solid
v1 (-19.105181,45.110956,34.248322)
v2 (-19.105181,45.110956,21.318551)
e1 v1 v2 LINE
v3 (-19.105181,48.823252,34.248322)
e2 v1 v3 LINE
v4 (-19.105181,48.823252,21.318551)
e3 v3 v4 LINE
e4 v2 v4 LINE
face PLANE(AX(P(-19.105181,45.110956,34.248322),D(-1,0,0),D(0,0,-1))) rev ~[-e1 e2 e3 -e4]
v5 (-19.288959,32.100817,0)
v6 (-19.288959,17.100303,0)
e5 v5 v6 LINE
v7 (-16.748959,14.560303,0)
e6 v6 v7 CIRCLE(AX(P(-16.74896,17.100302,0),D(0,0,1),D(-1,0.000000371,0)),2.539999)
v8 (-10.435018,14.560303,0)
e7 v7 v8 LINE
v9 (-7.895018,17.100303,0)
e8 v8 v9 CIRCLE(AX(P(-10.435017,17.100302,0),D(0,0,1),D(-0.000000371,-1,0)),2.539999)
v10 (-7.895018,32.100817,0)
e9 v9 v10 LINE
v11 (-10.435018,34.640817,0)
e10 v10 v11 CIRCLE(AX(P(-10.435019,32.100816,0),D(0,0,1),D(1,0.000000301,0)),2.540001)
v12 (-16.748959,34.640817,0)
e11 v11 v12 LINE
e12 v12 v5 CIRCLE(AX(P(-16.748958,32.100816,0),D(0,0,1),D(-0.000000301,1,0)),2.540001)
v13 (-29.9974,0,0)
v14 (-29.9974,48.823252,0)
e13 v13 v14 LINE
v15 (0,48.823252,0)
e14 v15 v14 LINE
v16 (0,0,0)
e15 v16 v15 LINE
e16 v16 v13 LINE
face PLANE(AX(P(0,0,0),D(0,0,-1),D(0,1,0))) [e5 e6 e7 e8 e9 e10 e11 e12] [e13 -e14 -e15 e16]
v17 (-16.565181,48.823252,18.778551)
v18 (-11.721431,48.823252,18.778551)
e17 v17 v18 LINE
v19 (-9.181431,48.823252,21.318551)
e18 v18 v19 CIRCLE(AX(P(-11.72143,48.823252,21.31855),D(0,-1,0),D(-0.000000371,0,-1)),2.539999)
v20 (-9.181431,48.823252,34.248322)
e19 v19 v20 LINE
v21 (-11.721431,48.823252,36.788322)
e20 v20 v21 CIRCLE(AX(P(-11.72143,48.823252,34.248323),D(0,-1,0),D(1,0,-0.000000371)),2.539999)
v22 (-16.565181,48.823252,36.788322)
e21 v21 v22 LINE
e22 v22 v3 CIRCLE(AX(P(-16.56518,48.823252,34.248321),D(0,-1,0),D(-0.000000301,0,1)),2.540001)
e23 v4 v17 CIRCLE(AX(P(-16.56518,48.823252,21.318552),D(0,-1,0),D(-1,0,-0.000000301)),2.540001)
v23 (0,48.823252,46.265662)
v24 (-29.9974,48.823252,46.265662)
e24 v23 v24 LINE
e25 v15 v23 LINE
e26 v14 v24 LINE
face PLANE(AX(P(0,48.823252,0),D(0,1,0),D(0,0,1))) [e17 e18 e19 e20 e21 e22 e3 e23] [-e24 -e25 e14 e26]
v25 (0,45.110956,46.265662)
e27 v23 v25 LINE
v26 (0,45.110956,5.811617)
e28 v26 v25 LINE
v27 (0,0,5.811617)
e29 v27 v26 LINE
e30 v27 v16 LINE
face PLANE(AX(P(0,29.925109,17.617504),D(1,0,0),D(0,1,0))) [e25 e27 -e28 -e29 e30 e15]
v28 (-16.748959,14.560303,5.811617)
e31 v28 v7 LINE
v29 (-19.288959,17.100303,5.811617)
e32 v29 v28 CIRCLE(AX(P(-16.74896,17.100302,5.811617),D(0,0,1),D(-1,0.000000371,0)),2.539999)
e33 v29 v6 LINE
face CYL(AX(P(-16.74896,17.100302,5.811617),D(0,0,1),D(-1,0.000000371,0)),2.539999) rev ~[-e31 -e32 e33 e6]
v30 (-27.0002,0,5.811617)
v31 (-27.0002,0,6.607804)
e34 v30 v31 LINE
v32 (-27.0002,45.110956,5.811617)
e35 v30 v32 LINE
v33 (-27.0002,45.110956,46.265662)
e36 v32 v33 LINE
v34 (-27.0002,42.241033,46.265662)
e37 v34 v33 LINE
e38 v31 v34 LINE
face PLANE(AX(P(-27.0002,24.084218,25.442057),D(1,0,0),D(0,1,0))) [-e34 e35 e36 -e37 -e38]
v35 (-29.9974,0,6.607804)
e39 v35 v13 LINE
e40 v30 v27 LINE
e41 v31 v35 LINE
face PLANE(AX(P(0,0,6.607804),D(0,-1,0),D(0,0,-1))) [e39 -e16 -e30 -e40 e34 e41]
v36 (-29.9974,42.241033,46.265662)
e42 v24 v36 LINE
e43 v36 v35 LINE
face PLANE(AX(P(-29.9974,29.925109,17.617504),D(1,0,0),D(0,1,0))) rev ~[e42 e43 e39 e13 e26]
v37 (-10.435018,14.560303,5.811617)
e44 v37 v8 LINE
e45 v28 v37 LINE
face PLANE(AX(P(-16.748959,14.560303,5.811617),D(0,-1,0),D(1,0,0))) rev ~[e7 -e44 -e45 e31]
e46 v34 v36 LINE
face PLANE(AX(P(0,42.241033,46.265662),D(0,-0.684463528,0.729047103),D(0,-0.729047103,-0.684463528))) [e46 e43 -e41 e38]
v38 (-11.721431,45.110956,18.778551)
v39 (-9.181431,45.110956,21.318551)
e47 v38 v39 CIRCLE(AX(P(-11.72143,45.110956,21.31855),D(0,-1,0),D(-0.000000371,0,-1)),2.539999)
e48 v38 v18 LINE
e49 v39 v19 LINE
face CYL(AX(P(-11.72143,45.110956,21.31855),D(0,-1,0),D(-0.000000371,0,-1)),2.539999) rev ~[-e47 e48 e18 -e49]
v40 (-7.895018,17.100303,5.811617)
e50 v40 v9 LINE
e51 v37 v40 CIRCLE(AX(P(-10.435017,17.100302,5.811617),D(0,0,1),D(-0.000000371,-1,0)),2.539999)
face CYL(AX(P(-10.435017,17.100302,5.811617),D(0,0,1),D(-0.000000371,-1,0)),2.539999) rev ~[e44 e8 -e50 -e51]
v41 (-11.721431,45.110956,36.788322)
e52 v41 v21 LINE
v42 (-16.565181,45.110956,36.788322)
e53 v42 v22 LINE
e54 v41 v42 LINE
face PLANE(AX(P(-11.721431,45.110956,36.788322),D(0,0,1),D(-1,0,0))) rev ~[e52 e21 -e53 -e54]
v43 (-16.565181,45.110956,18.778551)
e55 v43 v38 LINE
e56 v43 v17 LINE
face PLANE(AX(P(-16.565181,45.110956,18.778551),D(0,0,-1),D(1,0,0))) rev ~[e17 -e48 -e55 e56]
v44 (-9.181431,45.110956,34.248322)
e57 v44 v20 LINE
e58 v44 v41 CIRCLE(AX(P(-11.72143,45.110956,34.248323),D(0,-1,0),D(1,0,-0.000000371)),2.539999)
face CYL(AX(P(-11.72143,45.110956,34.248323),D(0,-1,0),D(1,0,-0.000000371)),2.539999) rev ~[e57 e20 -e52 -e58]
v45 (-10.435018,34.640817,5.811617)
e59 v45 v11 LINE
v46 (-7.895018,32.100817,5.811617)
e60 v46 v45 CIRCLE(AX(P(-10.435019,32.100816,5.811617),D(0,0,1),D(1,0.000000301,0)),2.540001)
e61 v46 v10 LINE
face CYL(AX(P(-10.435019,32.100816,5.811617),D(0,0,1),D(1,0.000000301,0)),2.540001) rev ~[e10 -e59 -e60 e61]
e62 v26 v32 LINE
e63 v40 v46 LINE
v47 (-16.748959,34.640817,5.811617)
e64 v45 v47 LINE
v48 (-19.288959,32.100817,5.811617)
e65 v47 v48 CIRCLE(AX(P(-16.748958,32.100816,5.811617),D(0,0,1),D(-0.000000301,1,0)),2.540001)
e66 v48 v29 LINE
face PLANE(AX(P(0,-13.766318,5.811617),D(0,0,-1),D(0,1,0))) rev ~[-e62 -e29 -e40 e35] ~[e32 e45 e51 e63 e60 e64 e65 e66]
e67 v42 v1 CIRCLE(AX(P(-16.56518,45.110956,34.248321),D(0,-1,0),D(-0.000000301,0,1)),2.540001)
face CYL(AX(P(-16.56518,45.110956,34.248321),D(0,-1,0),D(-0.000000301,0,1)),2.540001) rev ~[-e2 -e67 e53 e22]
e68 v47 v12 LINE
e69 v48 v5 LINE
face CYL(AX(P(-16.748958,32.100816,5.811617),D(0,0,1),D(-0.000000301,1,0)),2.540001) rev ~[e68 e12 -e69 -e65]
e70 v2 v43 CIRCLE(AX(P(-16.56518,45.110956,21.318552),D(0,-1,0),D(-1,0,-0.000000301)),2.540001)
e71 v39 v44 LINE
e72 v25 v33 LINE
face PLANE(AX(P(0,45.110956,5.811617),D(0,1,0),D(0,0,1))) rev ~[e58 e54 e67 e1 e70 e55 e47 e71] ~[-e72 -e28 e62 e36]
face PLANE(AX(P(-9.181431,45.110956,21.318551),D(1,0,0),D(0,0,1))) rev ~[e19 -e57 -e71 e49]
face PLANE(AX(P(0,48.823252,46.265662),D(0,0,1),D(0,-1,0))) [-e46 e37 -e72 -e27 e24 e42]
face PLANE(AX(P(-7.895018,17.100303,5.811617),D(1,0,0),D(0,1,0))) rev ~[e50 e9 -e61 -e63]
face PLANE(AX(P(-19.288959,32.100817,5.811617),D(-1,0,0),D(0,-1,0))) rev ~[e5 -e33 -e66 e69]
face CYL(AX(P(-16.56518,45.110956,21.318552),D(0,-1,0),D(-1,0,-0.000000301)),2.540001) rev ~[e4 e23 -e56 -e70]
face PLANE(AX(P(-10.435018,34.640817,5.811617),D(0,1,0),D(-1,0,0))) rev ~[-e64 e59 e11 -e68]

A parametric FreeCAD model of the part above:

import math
import FreeCAD as App
import Part
import Sketcher
Q = App.Units.Quantity

doc = App.newDocument("Part")
body = doc.addObject("PartDesign::Body", "Body")

# Sketch on YZ plane
sketch1 = body.newObject("Sketcher::SketchObject", "Sketch")
sketch1.AttachmentSupport = (doc.getObject("YZ_Plane"), [""])
sketch1.MapMode = "FlatFace"
sketch1.addGeometry(Part.LineSegment(App.Vector(0, 7, 0), App.Vector(0, 0, 0)), False)
sketch1.addGeometry(Part.LineSegment(App.Vector(0, 0, 0), App.Vector(49, 0, 0)), False)
sketch1.addGeometry(Part.LineSegment(App.Vector(49, 0, 0), App.Vector(49, 46, 0)), False)
sketch1.addGeometry(Part.LineSegment(App.Vector(49, 46, 0), App.Vector(42, 46, 0)), False)
sketch1.addGeometry(Part.LineSegment(App.Vector(42, 46, 0), App.Vector(0, 7, 0)), False)
sketch1.addConstraint(Sketcher.Constraint("Coincident", 0, 2, 1, 1))
sketch1.addConstraint(Sketcher.Constraint("Coincident", 1, 2, 2, 1))
sketch1.addConstraint(Sketcher.Constraint("Coincident", 2, 2, 3, 1))
sketch1.addConstraint(Sketcher.Constraint("Coincident", 3, 2, 4, 1))
sketch1.addConstraint(Sketcher.Constraint("Coincident", 4, 2, 0, 1))
sketch1.addConstraint(Sketcher.Constraint("Vertical", 0))
sketch1.addConstraint(Sketcher.Constraint("Horizontal", 1))
sketch1.addConstraint(Sketcher.Constraint("Vertical", 2))
sketch1.addConstraint(Sketcher.Constraint("Horizontal", 3))
sketch1.addConstraint(Sketcher.Constraint("Coincident", 0, 2, -1, 1))
sketch1.addConstraint(Sketcher.Constraint("DistanceX", 1, 1, 1, 2, Q("48.823252 mm")))
sketch1.addConstraint(Sketcher.Constraint("DistanceX", 3, 2, 3, 1, Q("6.582219 mm")))
sketch1.addConstraint(Sketcher.Constraint("Distance", 4, Q("57.94006 mm")))
sketch1.addConstraint(Sketcher.Constraint("DistanceY", 0, 2, 0, 1, Q("6.607804 mm")))
pad1 = body.newObject("PartDesign::Pad", "Pad")
pad1.Profile = sketch1
pad1.Length = Q("1.181 in")
pad1.Reversed = True
body2 = doc.addObject("PartDesign::Body", "Body001")

# Sketch on YZ plane
sketch2 = body2.newObject("Sketcher::SketchObject", "Sketch001")
sketch2.AttachmentSupport = (doc.getObject("YZ_Plane001"), [""])
sketch2.MapMode = "FlatFace"
sketch2.addGeometry(Part.LineSegment(App.Vector(45, 6, 0), App.Vector(45, 62, 0)), False)
sketch2.addGeometry(Part.LineSegment(App.Vector(45, 62, 0), App.Vector(-14, 6, 0)), False)
sketch2.addGeometry(Part.LineSegment(App.Vector(-14, 6, 0), App.Vector(45, 6, 0)), False)
sketch2.addConstraint(Sketcher.Constraint("Coincident", 0, 2, 1, 1))
sketch2.addConstraint(Sketcher.Constraint("Coincident", 1, 2, 2, 1))
sketch2.addConstraint(Sketcher.Constraint("Coincident", 2, 2, 0, 1))
sketch2.addConstraint(Sketcher.Constraint("Vertical", 0))
sketch2.addConstraint(Sketcher.Constraint("Horizontal", 2))
sketch2.addConstraint(Sketcher.Constraint("DistanceX", 2, 1, 2, 2, Q("58.877274 mm")))
sketch2.addConstraint(Sketcher.Constraint("DistanceY", 0, 1, 0, 2, Q("56.084677 mm")))
sketch2.addConstraint(Sketcher.Constraint("DistanceX", -1, 1, 0, 2, Q("45.110956 mm")))
sketch2.addConstraint(Sketcher.Constraint("DistanceY", -1, 1, 0, 2, Q("61.896294 mm")))
pad2 = body2.newObject("PartDesign::Pad", "Pad001")
pad2.Profile = sketch2
pad2.Length = Q("1.063 in")
pad2.Reversed = True
doc.recompute()

boolean = body.newObject("PartDesign::Boolean", "Boolean")
boolean.Type = "Cut"
boolean.addObjects([body2])

# Sketch on XY plane
sketch3 = body.newObject("Sketcher::SketchObject", "Sketch002")
sketch3.AttachmentSupport = (doc.getObject("XY_Plane"), [""])
sketch3.MapMode = "FlatFace"
sketch3.AttachmentOffset = App.Placement(App.Vector(0, 0, 5.811617), App.Rotation())
sketch3.addGeometry(Part.LineSegment(App.Vector(-10.4, 34.6, 0), App.Vector(-16.7, 34.6, 0)), False)
sketch3.addGeometry(Part.ArcOfCircle(Part.Circle(App.Vector(-16.7, 32.1, 0), App.Vector(0, 0, 1), 2.5), math.radians(90), math.radians(180)), False)
sketch3.addGeometry(Part.LineSegment(App.Vector(-19.3, 32.1, 0), App.Vector(-19.3, 17.1, 0)), False)
sketch3.addGeometry(Part.ArcOfCircle(Part.Circle(App.Vector(-16.7, 17.1, 0), App.Vector(0, 0, 1), 2.5), math.radians(180), math.radians(270)), False)
sketch3.addGeometry(Part.LineSegment(App.Vector(-16.7, 14.6, 0), App.Vector(-10.4, 14.6, 0)), False)
sketch3.addGeometry(Part.ArcOfCircle(Part.Circle(App.Vector(-10.4, 17.1, 0), App.Vector(0, 0, 1), 2.5), math.radians(-90), math.radians(0)), False)
sketch3.addGeometry(Part.LineSegment(App.Vector(-7.9, 17.1, 0), App.Vector(-7.9, 32.1, 0)), False)
sketch3.addGeometry(Part.ArcOfCircle(Part.Circle(App.Vector(-10.4, 32.1, 0), App.Vector(0, 0, 1), 2.5), math.radians(0), math.radians(90)), False)
sketch3.addConstraint(Sketcher.Constraint("Tangent", 0, 2, 1, 1))
sketch3.addConstraint(Sketcher.Constraint("Tangent", 1, 2, 2, 1))
sketch3.addConstraint(Sketcher.Constraint("Tangent", 2, 2, 3, 1))
sketch3.addConstraint(Sketcher.Constraint("Tangent", 3, 2, 4, 1))
sketch3.addConstraint(Sketcher.Constraint("Tangent", 4, 2, 5, 1))
sketch3.addConstraint(Sketcher.Constraint("Tangent", 5, 2, 6, 1))
sketch3.addConstraint(Sketcher.Constraint("Tangent", 6, 2, 7, 1))
sketch3.addConstraint(Sketcher.Constraint("Tangent", 7, 2, 0, 1))
sketch3.addConstraint(Sketcher.Constraint("Horizontal", 0))
sketch3.addConstraint(Sketcher.Constraint("Vertical", 2))
sketch3.addConstraint(Sketcher.Constraint("Horizontal", 4))
sketch3.addConstraint(Sketcher.Constraint("Vertical", 6))
sketch3.addConstraint(Sketcher.Constraint("Equal", 1, 3))
sketch3.addConstraint(Sketcher.Constraint("Equal", 3, 5))
sketch3.addConstraint(Sketcher.Constraint("Equal", 5, 7))
sketch3.addConstraint(Sketcher.Constraint("Radius", 1, Q("0.1 in")))
sketch3.addConstraint(Sketcher.Constraint("DistanceX", 0, 2, 0, 1, Q("6.313941 mm")))
sketch3.addConstraint(Sketcher.Constraint("DistanceY", 2, 2, 2, 1, Q("15.000514 mm")))
sketch3.addConstraint(Sketcher.Constraint("DistanceX", 1, 3, -1, 1, Q("16.748958 mm")))
sketch3.addConstraint(Sketcher.Constraint("DistanceY", -1, 1, 1, 3, Q("32.100816 mm")))
pocket1 = body.newObject("PartDesign::Pocket", "Pocket")
pocket1.Profile = sketch3
pocket1.Type = "ThroughAll"

# Sketch on XZ plane
sketch4 = body.newObject("Sketcher::SketchObject", "Sketch003")
sketch4.AttachmentSupport = (doc.getObject("XZ_Plane"), [""])
sketch4.MapMode = "FlatFace"
sketch4.AttachmentOffset = App.Placement(App.Vector(0, 0, -45.110956), App.Rotation())
sketch4.addGeometry(Part.LineSegment(App.Vector(-11.7, 36.8, 0), App.Vector(-16.6, 36.8, 0)), False)
sketch4.addGeometry(Part.ArcOfCircle(Part.Circle(App.Vector(-16.6, 34.2, 0), App.Vector(0, 0, 1), 2.5), math.radians(90), math.radians(180)), False)
sketch4.addGeometry(Part.LineSegment(App.Vector(-19.1, 34.2, 0), App.Vector(-19.1, 21.3, 0)), False)
sketch4.addGeometry(Part.ArcOfCircle(Part.Circle(App.Vector(-16.6, 21.3, 0), App.Vector(0, 0, 1), 2.5), math.radians(-180), math.radians(-90)), False)
sketch4.addGeometry(Part.LineSegment(App.Vector(-16.6, 18.8, 0), App.Vector(-11.7, 18.8, 0)), False)
sketch4.addGeometry(Part.ArcOfCircle(Part.Circle(App.Vector(-11.7, 21.3, 0), App.Vector(0, 0, 1), 2.5), math.radians(-90), math.radians(0)), False)
sketch4.addGeometry(Part.LineSegment(App.Vector(-9.2, 21.3, 0), App.Vector(-9.2, 34.2, 0)), False)
sketch4.addGeometry(Part.ArcOfCircle(Part.Circle(App.Vector(-11.7, 34.2, 0), App.Vector(0, 0, 1), 2.5), math.radians(0), math.radians(90)), False)
sketch4.addConstraint(Sketcher.Constraint("Tangent", 0, 2, 1, 1))
sketch4.addConstraint(Sketcher.Constraint("Tangent", 1, 2, 2, 1))
sketch4.addConstraint(Sketcher.Constraint("Tangent", 2, 2, 3, 1))
sketch4.addConstraint(Sketcher.Constraint("Tangent", 3, 2, 4, 1))
sketch4.addConstraint(Sketcher.Constraint("Tangent", 4, 2, 5, 1))
sketch4.addConstraint(Sketcher.Constraint("Tangent", 5, 2, 6, 1))
sketch4.addConstraint(Sketcher.Constraint("Tangent", 6, 2, 7, 1))
sketch4.addConstraint(Sketcher.Constraint("Tangent", 7, 2, 0, 1))
sketch4.addConstraint(Sketcher.Constraint("Horizontal", 0))
sketch4.addConstraint(Sketcher.Constraint("Vertical", 2))
sketch4.addConstraint(Sketcher.Constraint("Horizontal", 4))
sketch4.addConstraint(Sketcher.Constraint("Vertical", 6))
sketch4.addConstraint(Sketcher.Constraint("Equal", 1, 3))
sketch4.addConstraint(Sketcher.Constraint("Equal", 3, 5))
sketch4.addConstraint(Sketcher.Constraint("Equal", 5, 7))
sketch4.addConstraint(Sketcher.Constraint("Radius", 1, Q("0.1 in")))
sketch4.addConstraint(Sketcher.Constraint("DistanceX", 0, 2, 0, 1, Q("4.84375 mm")))
sketch4.addConstraint(Sketcher.Constraint("DistanceY", 2, 2, 2, 1, Q("12.929771 mm")))
sketch4.addConstraint(Sketcher.Constraint("DistanceX", 1, 3, -1, 1, Q("16.56518 mm")))
sketch4.addConstraint(Sketcher.Constraint("DistanceY", -1, 1, 1, 3, Q("34.248321 mm")))
pocket2 = body.newObject("PartDesign::Pocket", "Pocket001")
pocket2.Profile = sketch4
pocket2.Type = "ThroughAll"

doc.recompute()
